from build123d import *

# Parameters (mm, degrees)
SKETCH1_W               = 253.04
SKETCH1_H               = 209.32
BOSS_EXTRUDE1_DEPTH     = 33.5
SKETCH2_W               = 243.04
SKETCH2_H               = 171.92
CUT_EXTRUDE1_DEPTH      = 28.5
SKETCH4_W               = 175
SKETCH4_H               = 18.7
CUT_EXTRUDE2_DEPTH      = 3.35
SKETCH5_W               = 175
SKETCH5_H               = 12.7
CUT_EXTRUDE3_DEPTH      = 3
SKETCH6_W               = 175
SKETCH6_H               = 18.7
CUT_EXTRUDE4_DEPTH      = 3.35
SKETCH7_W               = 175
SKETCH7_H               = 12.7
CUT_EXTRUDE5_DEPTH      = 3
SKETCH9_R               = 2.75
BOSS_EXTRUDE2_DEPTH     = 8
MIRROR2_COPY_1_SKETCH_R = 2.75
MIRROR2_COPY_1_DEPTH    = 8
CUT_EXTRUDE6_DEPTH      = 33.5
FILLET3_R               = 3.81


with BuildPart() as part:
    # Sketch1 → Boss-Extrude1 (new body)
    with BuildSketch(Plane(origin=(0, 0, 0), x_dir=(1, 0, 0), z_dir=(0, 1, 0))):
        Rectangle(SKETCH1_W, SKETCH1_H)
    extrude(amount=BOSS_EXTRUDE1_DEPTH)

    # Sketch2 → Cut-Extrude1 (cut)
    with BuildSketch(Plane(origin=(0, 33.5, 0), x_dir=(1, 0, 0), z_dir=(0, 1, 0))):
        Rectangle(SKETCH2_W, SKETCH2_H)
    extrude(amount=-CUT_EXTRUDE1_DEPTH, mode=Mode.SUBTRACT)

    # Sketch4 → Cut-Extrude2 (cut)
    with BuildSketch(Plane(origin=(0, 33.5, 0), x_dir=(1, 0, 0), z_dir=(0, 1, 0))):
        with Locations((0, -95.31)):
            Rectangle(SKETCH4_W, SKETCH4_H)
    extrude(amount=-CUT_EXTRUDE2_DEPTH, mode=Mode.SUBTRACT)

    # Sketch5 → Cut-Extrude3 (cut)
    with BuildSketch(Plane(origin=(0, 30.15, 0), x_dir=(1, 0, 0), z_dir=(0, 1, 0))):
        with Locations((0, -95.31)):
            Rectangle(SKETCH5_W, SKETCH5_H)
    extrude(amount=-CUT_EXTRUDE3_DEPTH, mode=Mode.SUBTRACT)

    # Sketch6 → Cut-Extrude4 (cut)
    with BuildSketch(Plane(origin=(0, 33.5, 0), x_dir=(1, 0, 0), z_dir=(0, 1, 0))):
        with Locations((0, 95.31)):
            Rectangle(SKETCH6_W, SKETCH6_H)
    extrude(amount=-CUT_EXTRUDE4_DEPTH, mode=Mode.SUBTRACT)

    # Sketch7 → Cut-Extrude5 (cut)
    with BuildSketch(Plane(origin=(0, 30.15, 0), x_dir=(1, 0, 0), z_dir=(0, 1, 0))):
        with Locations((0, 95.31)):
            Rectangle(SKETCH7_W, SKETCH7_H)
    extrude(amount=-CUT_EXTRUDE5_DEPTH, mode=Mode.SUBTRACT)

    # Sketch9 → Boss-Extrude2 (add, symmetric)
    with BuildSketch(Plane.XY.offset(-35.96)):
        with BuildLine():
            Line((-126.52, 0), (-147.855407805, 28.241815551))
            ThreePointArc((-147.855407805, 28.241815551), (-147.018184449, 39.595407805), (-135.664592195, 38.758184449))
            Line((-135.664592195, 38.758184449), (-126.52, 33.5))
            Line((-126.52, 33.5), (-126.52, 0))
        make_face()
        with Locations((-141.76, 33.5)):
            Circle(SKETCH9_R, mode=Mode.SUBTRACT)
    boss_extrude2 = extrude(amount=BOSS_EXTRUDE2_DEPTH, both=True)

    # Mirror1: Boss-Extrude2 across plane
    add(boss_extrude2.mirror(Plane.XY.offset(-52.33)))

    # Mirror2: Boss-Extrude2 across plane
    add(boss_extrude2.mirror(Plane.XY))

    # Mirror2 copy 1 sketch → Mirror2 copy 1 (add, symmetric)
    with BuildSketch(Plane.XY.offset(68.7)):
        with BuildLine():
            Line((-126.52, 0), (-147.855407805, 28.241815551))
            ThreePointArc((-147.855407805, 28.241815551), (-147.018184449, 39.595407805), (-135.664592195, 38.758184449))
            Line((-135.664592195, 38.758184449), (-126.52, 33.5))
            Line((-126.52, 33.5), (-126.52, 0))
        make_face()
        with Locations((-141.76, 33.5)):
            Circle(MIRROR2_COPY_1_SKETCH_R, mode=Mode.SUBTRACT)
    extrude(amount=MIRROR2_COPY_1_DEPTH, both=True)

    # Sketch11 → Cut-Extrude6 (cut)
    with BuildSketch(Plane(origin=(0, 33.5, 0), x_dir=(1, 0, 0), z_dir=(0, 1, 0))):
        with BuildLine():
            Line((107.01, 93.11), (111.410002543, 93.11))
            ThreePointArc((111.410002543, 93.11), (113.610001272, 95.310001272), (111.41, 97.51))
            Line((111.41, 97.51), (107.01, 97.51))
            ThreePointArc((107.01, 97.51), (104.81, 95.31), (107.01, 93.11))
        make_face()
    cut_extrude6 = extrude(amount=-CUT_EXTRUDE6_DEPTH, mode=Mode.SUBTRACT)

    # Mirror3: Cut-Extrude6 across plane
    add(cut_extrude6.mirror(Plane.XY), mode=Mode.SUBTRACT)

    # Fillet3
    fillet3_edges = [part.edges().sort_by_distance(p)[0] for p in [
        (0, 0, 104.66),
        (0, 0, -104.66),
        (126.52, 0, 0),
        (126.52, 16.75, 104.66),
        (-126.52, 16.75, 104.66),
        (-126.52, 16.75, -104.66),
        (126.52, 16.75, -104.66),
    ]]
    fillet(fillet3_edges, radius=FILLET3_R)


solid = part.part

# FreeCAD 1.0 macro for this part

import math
import FreeCAD as App
import Part
import Sketcher
from FreeCAD import Vector


def edges_at(feature, points):
    """Names of the edges that pass closest to the given points."""
    edges = feature.Shape.Edges
    near = lambda p: min(range(len(edges)), key=lambda i: edges[i].distToShape(Part.Vertex(*p))[0])
    return sorted({f"Edge{near(p) + 1}" for p in points})


def add_polygon(sketch, points):
    """Adds a closed chain of lines whose ends are joined by coincident constraints."""
    first, n = sketch.GeometryCount, len(points)
    for a, b in zip(points, points[1:] + points[:1]):
        sketch.addGeometry(Part.LineSegment(App.Vector(*a, 0), App.Vector(*b, 0)), False)
    for i in range(n):
        sketch.addConstraint(Sketcher.Constraint("Coincident", first + i, 2, first + (i + 1) % n, 1))

doc = App.newDocument("Part")
body = doc.addObject("PartDesign::Body", "Body")

# Sketch on XZ plane
sketch1 = body.newObject("Sketcher::SketchObject", "Sketch")
sketch1.AttachmentSupport = (doc.getObject("XZ_Plane"), [""])
sketch1.MapMode = "FlatFace"
add_polygon(sketch1, [(-126.52, -104.66), (-126.52, 104.66), (126.52, 104.66), (126.52, -104.66)])  # lines 0-3
sketch1.addConstraint([
    Sketcher.Constraint("Vertical", 0),
    Sketcher.Constraint("Horizontal", 1),
    Sketcher.Constraint("Vertical", 2),
    Sketcher.Constraint("Horizontal", 3),
    Sketcher.Constraint("Symmetric", 0, 2, 2, 2, -1, 1),
    Sketcher.Constraint("DistanceX", 1, 1, 1, 2, 253.04),
    Sketcher.Constraint("DistanceY", 0, 1, 0, 2, 209.32),
])
pad1 = body.newObject("PartDesign::Pad", "Pad")
pad1.Profile = sketch1
pad1.Length = 33.5
pad1.Reversed = True

# Sketch on XZ plane
sketch2 = body.newObject("Sketcher::SketchObject", "Sketch001")
sketch2.AttachmentSupport = (doc.getObject("XZ_Plane"), [""])
sketch2.MapMode = "FlatFace"
sketch2.AttachmentOffset = App.Placement(Vector(0, 0, -33.5), App.Rotation())
add_polygon(sketch2, [(-121.52, -85.96), (-121.52, 85.96), (121.52, 85.96), (121.52, -85.96)])  # lines 0-3
sketch2.addConstraint([
    Sketcher.Constraint("Vertical", 0),
    Sketcher.Constraint("Horizontal", 1),
    Sketcher.Constraint("Vertical", 2),
    Sketcher.Constraint("Horizontal", 3),
    Sketcher.Constraint("Symmetric", 0, 2, 2, 2, -1, 1),
    Sketcher.Constraint("DistanceX", 1, 1, 1, 2, 243.04),
    Sketcher.Constraint("DistanceY", 0, 1, 0, 2, 171.92),
])
pocket1 = body.newObject("PartDesign::Pocket", "Pocket")
pocket1.Profile = sketch2
pocket1.Length = 28.5
pocket1.Reversed = True

# Sketch on XZ plane
sketch3 = body.newObject("Sketcher::SketchObject", "Sketch002")
sketch3.AttachmentSupport = (doc.getObject("XZ_Plane"), [""])
sketch3.MapMode = "FlatFace"
sketch3.AttachmentOffset = App.Placement(Vector(0, 0, -33.5), App.Rotation())
add_polygon(sketch3, [(-87.5, 85.96), (-87.5, 104.66), (87.5, 104.66), (87.5, 85.96)])  # lines 0-3
sketch3.addConstraint([
    Sketcher.Constraint("Vertical", 0),
    Sketcher.Constraint("Horizontal", 1),
    Sketcher.Constraint("Vertical", 2),
    Sketcher.Constraint("Horizontal", 3),
    Sketcher.Constraint("DistanceX", 1, 1, 1, 2, 175.0),
    Sketcher.Constraint("DistanceY", 0, 1, 0, 2, 18.7),
    Sketcher.Constraint("DistanceX", 0, 2, -1, 1, 87.5),
    Sketcher.Constraint("DistanceY", -1, 1, 0, 2, 104.66),
])
pocket2 = body.newObject("PartDesign::Pocket", "Pocket001")
pocket2.Profile = sketch3
pocket2.Length = 3.35
pocket2.Reversed = True

# Sketch on XZ plane
sketch4 = body.newObject("Sketcher::SketchObject", "Sketch003")
sketch4.AttachmentSupport = (doc.getObject("XZ_Plane"), [""])
sketch4.MapMode = "FlatFace"
sketch4.AttachmentOffset = App.Placement(Vector(0, 0, -30.15), App.Rotation())
add_polygon(sketch4, [(-87.5, 88.96), (-87.5, 101.66), (87.5, 101.66), (87.5, 88.96)])  # lines 0-3
sketch4.addConstraint([
    Sketcher.Constraint("Vertical", 0),
    Sketcher.Constraint("Horizontal", 1),
    Sketcher.Constraint("Vertical", 2),
    Sketcher.Constraint("Horizontal", 3),
    Sketcher.Constraint("DistanceX", 1, 1, 1, 2, 175.0),
    Sketcher.Constraint("DistanceY", 0, 1, 0, 2, 12.7),
    Sketcher.Constraint("DistanceX", 0, 2, -1, 1, 87.5),
    Sketcher.Constraint("DistanceY", -1, 1, 0, 2, 101.66),
])
pocket3 = body.newObject("PartDesign::Pocket", "Pocket002")
pocket3.Profile = sketch4
pocket3.Length = 3
pocket3.Reversed = True

# Sketch on XZ plane
sketch5 = body.newObject("Sketcher::SketchObject", "Sketch004")
sketch5.AttachmentSupport = (doc.getObject("XZ_Plane"), [""])
sketch5.MapMode = "FlatFace"
sketch5.AttachmentOffset = App.Placement(Vector(0, 0, -33.5), App.Rotation())
add_polygon(sketch5, [(-87.5, -104.66), (-87.5, -85.96), (87.5, -85.96), (87.5, -104.66)])  # lines 0-3
sketch5.addConstraint([
    Sketcher.Constraint("Vertical", 0),
    Sketcher.Constraint("Horizontal", 1),
    Sketcher.Constraint("Vertical", 2),
    Sketcher.Constraint("Horizontal", 3),
    Sketcher.Constraint("DistanceX", 1, 1, 1, 2, 175.0),
    Sketcher.Constraint("DistanceY", 0, 1, 0, 2, 18.7),
    Sketcher.Constraint("DistanceX", 0, 2, -1, 1, 87.5),
    Sketcher.Constraint("DistanceY", 0, 2, -1, 1, 85.96),
])
pocket4 = body.newObject("PartDesign::Pocket", "Pocket003")
pocket4.Profile = sketch5
pocket4.Length = 3.35
pocket4.Reversed = True

# Sketch on XZ plane
sketch6 = body.newObject("Sketcher::SketchObject", "Sketch005")
sketch6.AttachmentSupport = (doc.getObject("XZ_Plane"), [""])
sketch6.MapMode = "FlatFace"
sketch6.AttachmentOffset = App.Placement(Vector(0, 0, -30.15), App.Rotation())
add_polygon(sketch6, [(-87.5, -101.66), (-87.5, -88.96), (87.5, -88.96), (87.5, -101.66)])  # lines 0-3
sketch6.addConstraint([
    Sketcher.Constraint("Vertical", 0),
    Sketcher.Constraint("Horizontal", 1),
    Sketcher.Constraint("Vertical", 2),
    Sketcher.Constraint("Horizontal", 3),
    Sketcher.Constraint("DistanceX", 1, 1, 1, 2, 175.0),
    Sketcher.Constraint("DistanceY", 0, 1, 0, 2, 12.7),
    Sketcher.Constraint("DistanceX", 0, 2, -1, 1, 87.5),
    Sketcher.Constraint("DistanceY", 0, 2, -1, 1, 88.96),
])
pocket5 = body.newObject("PartDesign::Pocket", "Pocket004")
pocket5.Profile = sketch6
pocket5.Length = 3
pocket5.Reversed = True

# Sketch on XY plane
sketch7 = body.newObject("Sketcher::SketchObject", "Sketch006")
sketch7.AttachmentSupport = (doc.getObject("XY_Plane"), [""])
sketch7.MapMode = "FlatFace"
sketch7.AttachmentOffset = App.Placement(Vector(0, 0, -35.96), App.Rotation())
sketch7.addGeometry([
    Part.LineSegment(Vector(-147.855408, 28.241816, 0), Vector(-126.52, 0, 0)),  # 0
    Part.LineSegment(Vector(-126.52, 0, 0), Vector(-126.52, 33.5, 0)),  # 1
    Part.LineSegment(Vector(-126.52, 33.5, 0), Vector(-135.664592, 38.758184, 0)),  # 2
    Part.ArcOfCircle(Part.Circle(Vector(-141.76, 33.5, 0), Vector(0, 0, 1), 8.05), math.radians(40.782595), math.radians(220.782595)),  # 3
    Part.Circle(Vector(-141.76, 33.5, 0), Vector(0, 0, 1), 2.75),  # 4
], False)
sketch7.addConstraint([
    Sketcher.Constraint("Coincident", 0, 2, 1, 1),
    Sketcher.Constraint("Coincident", 1, 2, 2, 1),
    Sketcher.Constraint("Coincident", 2, 2, 3, 1),
    Sketcher.Constraint("Coincident", 3, 2, 0, 1),
    Sketcher.Constraint("Vertical", 1),
    Sketcher.Constraint("Coincident", 4, 3, 3, 3),
    Sketcher.Constraint("PointOnObject", 0, 2, -1),
    Sketcher.Constraint("Horizontal", 4, 3, 1, 2),
    Sketcher.Constraint("Diameter", 4, 5.5),
    Sketcher.Constraint("Radius", 3, 8.05),
    Sketcher.Constraint("DistanceY", 1, 1, 1, 2, 33.5),
    Sketcher.Constraint("DistanceX", 3, 3, -1, 1, 141.76),
    Sketcher.Constraint("DistanceX", 0, 2, -1, 1, 126.52),
    Sketcher.Constraint("Distance", 0, 35.394912),
    Sketcher.Constraint("DistanceY", 3, 2, 2, 2, 10.516369),
])
pad2 = body.newObject("PartDesign::Pad", "Pad001")
pad2.Profile = sketch7
pad2.Length = 16
pad2.Midplane = True
doc.recompute()

datumplane = body.newObject("PartDesign::Plane", "DatumPlane")
datumplane.AttachmentSupport = (doc.getObject("XY_Plane"), [""])
datumplane.MapMode = "FlatFace"
datumplane.AttachmentOffset = App.Placement(Vector(0, 0, -52.33), App.Rotation())
mirrored = body.newObject("PartDesign::Mirrored", "Mirrored")
mirrored.Originals = [pad2]
mirrored.MirrorPlane = (datumplane, [""])
body.Tip = mirrored
doc.recompute()

mirrored2 = body.newObject("PartDesign::Mirrored", "Mirrored001")
mirrored2.Originals = [pad2]
mirrored2.MirrorPlane = (doc.getObject("XY_Plane"), [""])
body.Tip = mirrored2

# Sketch on XY plane
sketch8 = body.newObject("Sketcher::SketchObject", "Sketch007")
sketch8.AttachmentSupport = (doc.getObject("XY_Plane"), [""])
sketch8.MapMode = "FlatFace"
sketch8.AttachmentOffset = App.Placement(Vector(0, 0, 68.7), App.Rotation())
sketch8.addGeometry([
    Part.LineSegment(Vector(-147.855408, 28.241816, 0), Vector(-126.52, 0, 0)),  # 0
    Part.LineSegment(Vector(-126.52, 0, 0), Vector(-126.52, 33.5, 0)),  # 1
    Part.LineSegment(Vector(-126.52, 33.5, 0), Vector(-135.664592, 38.758184, 0)),  # 2
    Part.ArcOfCircle(Part.Circle(Vector(-141.76, 33.5, 0), Vector(0, 0, 1), 8.05), math.radians(40.782595), math.radians(220.782595)),  # 3
    Part.Circle(Vector(-141.76, 33.5, 0), Vector(0, 0, 1), 2.75),  # 4
], False)
sketch8.addConstraint([
    Sketcher.Constraint("Coincident", 0, 2, 1, 1),
    Sketcher.Constraint("Coincident", 1, 2, 2, 1),
    Sketcher.Constraint("Coincident", 2, 2, 3, 1),
    Sketcher.Constraint("Coincident", 3, 2, 0, 1),
    Sketcher.Constraint("Vertical", 1),
    Sketcher.Constraint("Coincident", 4, 3, 3, 3),
    Sketcher.Constraint("PointOnObject", 0, 2, -1),
    Sketcher.Constraint("Horizontal", 4, 3, 1, 2),
    Sketcher.Constraint("Diameter", 4, 5.5),
    Sketcher.Constraint("Radius", 3, 8.05),
    Sketcher.Constraint("DistanceY", 1, 1, 1, 2, 33.5),
    Sketcher.Constraint("DistanceX", 3, 3, -1, 1, 141.76),
    Sketcher.Constraint("DistanceX", 0, 2, -1, 1, 126.52),
    Sketcher.Constraint("Distance", 0, 35.394912),
    Sketcher.Constraint("DistanceY", 3, 2, 2, 2, 10.516369),
])
pad3 = body.newObject("PartDesign::Pad", "Pad002")
pad3.Profile = sketch8
pad3.Length = 16
pad3.Midplane = True

# Sketch on XZ plane
sketch9 = body.newObject("Sketcher::SketchObject", "Sketch008")
sketch9.AttachmentSupport = (doc.getObject("XZ_Plane"), [""])
sketch9.MapMode = "FlatFace"
sketch9.AttachmentOffset = App.Placement(Vector(0, 0, -33.5), App.Rotation())
sketch9.addGeometry([
    Part.LineSegment(Vector(107.01, -93.11, 0), Vector(111.410003, -93.11, 0)),
    Part.ArcOfCircle(Part.Circle(Vector(111.410001, -95.31, 0), Vector(0, 0, 1), 2.2), math.radians(-90.000033), math.radians(89.999967)),
    Part.LineSegment(Vector(111.41, -97.51, 0), Vector(107.01, -97.51, 0)),
    Part.ArcOfCircle(Part.Circle(Vector(107.01, -95.31, 0), Vector(0, 0, 1), 2.2), math.radians(90), math.radians(270)),
], False)
sketch9.addConstraint([
    Sketcher.Constraint("Tangent", 0, 2, 1, 2),
    Sketcher.Constraint("Tangent", 1, 1, 2, 1),
    Sketcher.Constraint("Tangent", 2, 2, 3, 2),
    Sketcher.Constraint("Tangent", 3, 1, 0, 1),
    Sketcher.Constraint("Horizontal", 0),
    Sketcher.Constraint("Horizontal", 2),
    Sketcher.Constraint("Radius", 1, 2.2),
    Sketcher.Constraint("DistanceX", 2, 2, 2, 1, 4.4),
    Sketcher.Constraint("DistanceX", -1, 1, 1, 3, 111.410001),
    Sketcher.Constraint("DistanceY", 1, 3, -1, 1, 95.31),
])
pocket6 = body.newObject("PartDesign::Pocket", "Pocket005")
pocket6.Profile = sketch9
pocket6.Length = 33.5
pocket6.Reversed = True
doc.recompute()

mirrored3 = body.newObject("PartDesign::Mirrored", "Mirrored002")
mirrored3.Originals = [pocket6]
mirrored3.MirrorPlane = (doc.getObject("XY_Plane"), [""])
body.Tip = mirrored3
doc.recompute()

fillet = body.newObject("PartDesign::Fillet", "Fillet")
fillet.Base = (mirrored3, edges_at(mirrored3, [
    (0, 0, 104.66),
    (0, 0, -104.66),
    (126.52, 0, 0),
    (126.52, 16.75, 104.66),
    (-126.52, 16.75, 104.66),
    (-126.52, 16.75, -104.66),
    (126.52, 16.75, -104.66),
]))
fillet.Radius = 3.81

doc.recompute()
